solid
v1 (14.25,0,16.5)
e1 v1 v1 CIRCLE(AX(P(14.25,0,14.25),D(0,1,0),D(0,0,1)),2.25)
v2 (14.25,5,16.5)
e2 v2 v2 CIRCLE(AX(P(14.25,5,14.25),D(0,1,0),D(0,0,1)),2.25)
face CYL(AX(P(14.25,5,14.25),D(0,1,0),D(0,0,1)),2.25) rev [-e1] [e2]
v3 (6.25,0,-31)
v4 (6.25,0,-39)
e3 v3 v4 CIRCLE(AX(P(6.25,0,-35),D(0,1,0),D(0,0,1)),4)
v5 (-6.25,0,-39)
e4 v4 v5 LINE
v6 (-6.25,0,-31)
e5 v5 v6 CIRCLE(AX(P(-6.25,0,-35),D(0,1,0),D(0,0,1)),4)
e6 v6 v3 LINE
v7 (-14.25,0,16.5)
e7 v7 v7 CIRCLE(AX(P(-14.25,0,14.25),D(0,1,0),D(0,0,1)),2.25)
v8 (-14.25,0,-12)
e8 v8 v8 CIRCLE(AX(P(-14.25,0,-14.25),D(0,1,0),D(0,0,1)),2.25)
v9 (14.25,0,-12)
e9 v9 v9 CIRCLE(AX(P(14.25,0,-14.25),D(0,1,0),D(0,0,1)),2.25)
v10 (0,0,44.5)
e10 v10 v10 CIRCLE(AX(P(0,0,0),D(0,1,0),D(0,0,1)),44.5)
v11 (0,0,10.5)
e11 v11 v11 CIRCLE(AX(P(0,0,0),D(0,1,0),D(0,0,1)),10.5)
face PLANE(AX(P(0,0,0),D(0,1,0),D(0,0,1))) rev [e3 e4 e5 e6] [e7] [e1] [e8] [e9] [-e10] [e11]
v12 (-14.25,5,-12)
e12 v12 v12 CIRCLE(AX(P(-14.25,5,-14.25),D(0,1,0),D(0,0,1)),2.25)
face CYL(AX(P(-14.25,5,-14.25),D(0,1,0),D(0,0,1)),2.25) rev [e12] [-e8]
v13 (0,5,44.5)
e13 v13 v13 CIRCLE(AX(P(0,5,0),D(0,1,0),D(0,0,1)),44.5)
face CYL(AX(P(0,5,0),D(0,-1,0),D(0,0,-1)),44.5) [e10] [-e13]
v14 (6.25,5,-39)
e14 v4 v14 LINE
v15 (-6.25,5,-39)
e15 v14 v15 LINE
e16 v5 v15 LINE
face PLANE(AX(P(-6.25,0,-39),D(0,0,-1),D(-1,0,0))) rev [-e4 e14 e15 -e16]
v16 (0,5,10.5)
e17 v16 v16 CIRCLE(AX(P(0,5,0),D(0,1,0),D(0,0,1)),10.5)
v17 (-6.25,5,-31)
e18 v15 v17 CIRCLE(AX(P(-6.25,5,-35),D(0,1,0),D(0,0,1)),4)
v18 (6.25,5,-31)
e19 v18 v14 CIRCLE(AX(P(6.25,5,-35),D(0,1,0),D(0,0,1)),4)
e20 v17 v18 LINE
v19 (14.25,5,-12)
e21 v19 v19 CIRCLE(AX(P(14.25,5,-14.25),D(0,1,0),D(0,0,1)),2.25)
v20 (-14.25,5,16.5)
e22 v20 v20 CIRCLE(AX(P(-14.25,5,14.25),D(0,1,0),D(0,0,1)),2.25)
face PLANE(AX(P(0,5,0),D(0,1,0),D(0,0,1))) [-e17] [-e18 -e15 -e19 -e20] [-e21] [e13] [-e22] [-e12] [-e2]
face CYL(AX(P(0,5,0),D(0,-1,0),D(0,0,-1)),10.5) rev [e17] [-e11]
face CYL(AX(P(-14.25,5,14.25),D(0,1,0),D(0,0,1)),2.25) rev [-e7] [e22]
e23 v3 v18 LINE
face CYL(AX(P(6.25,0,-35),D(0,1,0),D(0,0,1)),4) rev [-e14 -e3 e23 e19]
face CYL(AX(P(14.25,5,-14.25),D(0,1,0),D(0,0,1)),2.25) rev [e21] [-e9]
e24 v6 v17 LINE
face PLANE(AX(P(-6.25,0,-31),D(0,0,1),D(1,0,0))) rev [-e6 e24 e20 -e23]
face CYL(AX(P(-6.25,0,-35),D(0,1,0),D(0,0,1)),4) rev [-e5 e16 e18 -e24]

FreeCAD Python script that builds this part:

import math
import FreeCAD as App
import Part
import Sketcher
from FreeCAD import Vector
Q = App.Units.Quantity

doc = App.newDocument("Part")
body = doc.addObject("PartDesign::Body", "Body")

sketch1 = doc.addObject("Sketcher::SketchObject", "Sketch")
body.addObject(sketch1)
sketch1.AttachmentSupport = (doc.XZ_Plane, [""])
sketch1.MapMode = "FlatFace"
sketch1.addGeometry(Part.Circle(Vector(0, 0, 0), Vector(0, 0, 1), 44), False)
sketch1.addGeometry(Part.Circle(Vector(0, 0, 0), Vector(0, 0, 1), 10), False)
sketch1.addConstraint(Sketcher.Constraint("Coincident", 0, 3, -1, 1))
sketch1.addConstraint(Sketcher.Constraint("Coincident", 1, 3, -1, 1))
sketch1.addConstraint(Sketcher.Constraint("Diameter", 0, Q("89 mm")))
sketch1.addConstraint(Sketcher.Constraint("Diameter", 1, Q("21 mm")))
pad1 = doc.addObject("PartDesign::Pad", "Pad")
body.addObject(pad1)
pad1.Profile = sketch1
pad1.Length = 5
pad1.Reversed = True

sketch2 = doc.addObject("Sketcher::SketchObject", "Sketch001")
body.addObject(sketch2)
sketch2.AttachmentSupport = (doc.XZ_Plane, [""])
sketch2.MapMode = "FlatFace"
sketch2.AttachmentOffset = App.Placement(Vector(0, 0, -5), App.Rotation())
sketch2.addGeometry(Part.LineSegment(Vector(6.2, -39, 0), Vector(-6.2, -39, 0)), False)
sketch2.addGeometry(Part.ArcOfCircle(Part.Circle(Vector(-6.2, -35, 0), Vector(0, 0, 1), 4), math.radians(90), math.radians(270)), False)
sketch2.addGeometry(Part.LineSegment(Vector(-6.2, -31, 0), Vector(6.2, -31, 0)), False)
sketch2.addGeometry(Part.ArcOfCircle(Part.Circle(Vector(6.2, -35, 0), Vector(0, 0, 1), 4), math.radians(-90), math.radians(90)), False)
sketch2.addConstraint(Sketcher.Constraint("Tangent", 0, 2, 1, 2))
sketch2.addConstraint(Sketcher.Constraint("Tangent", 1, 1, 2, 1))
sketch2.addConstraint(Sketcher.Constraint("Tangent", 2, 2, 3, 2))
sketch2.addConstraint(Sketcher.Constraint("Tangent", 3, 1, 0, 1))
sketch2.addConstraint(Sketcher.Constraint("Horizontal", 0))
sketch2.addConstraint(Sketcher.Constraint("Horizontal", 2))
sketch2.addConstraint(Sketcher.Constraint("Radius", 1, Q("4 mm")))
sketch2.addConstraint(Sketcher.Constraint("DistanceX", 0, 2, 0, 1, Q("12.5 mm")))
sketch2.addConstraint(Sketcher.Constraint("DistanceY", 1, 3, -1, 1, Q("35 mm")))
sketch2.addConstraint(Sketcher.Constraint("DistanceX", 1, 3, -1, 1, Q("6.25 mm")))
pocket1 = doc.addObject("PartDesign::Pocket", "Pocket")
body.addObject(pocket1)
pocket1.Profile = sketch2
pocket1.Type = "ThroughAll"
pocket1.Reversed = True

sketch3 = doc.addObject("Sketcher::SketchObject", "Sketch002")
body.addObject(sketch3)
sketch3.AttachmentSupport = (doc.XZ_Plane, [""])
sketch3.MapMode = "FlatFace"
sketch3.AttachmentOffset = App.Placement(Vector(0, 0, -5), App.Rotation())
sketch3.addGeometry(Part.Circle(Vector(-14.2, -14.2, 0), Vector(0, 0, 1), 2.2), False)
sketch3.addGeometry(Part.Circle(Vector(14.2, 14.2, 0), Vector(0, 0, 1), 2.2), False)
sketch3.addGeometry(Part.Circle(Vector(14.2, -14.2, 0), Vector(0, 0, 1), 2.2), False)
sketch3.addGeometry(Part.Circle(Vector(-14.2, 14.2, 0), Vector(0, 0, 1), 2.2), False)
sketch3.addConstraint(Sketcher.Constraint("Equal", 0, 1))
sketch3.addConstraint(Sketcher.Constraint("Equal", 1, 2))
sketch3.addConstraint(Sketcher.Constraint("Equal", 2, 3))
sketch3.addConstraint(Sketcher.Constraint("Symmetric", 0, 3, 1, 3, -1, 1))
sketch3.addConstraint(Sketcher.Constraint("Symmetric", 2, 3, 3, 3, -1, 1))
sketch3.addConstraint(Sketcher.Constraint("Symmetric", 0, 3, 2, 3, -2))
sketch3.addConstraint(Sketcher.Constraint("Diameter", 0, Q("4.5 mm")))
sketch3.addConstraint(Sketcher.Constraint("DistanceX", 0, 3, 1, 3, Q("28.5 mm")))
sketch3.addConstraint(Sketcher.Constraint("DistanceY", 0, 3, 1, 3, Q("28.5 mm")))
doc.recompute()
hole = doc.addObject("PartDesign::Hole", "Hole")
body.addObject(hole)
hole.Profile = sketch3
hole.ThreadType = "None"
hole.Diameter = 4.5
hole.DepthType = "ThroughAll"
hole.Reversed = True

doc.recompute()
